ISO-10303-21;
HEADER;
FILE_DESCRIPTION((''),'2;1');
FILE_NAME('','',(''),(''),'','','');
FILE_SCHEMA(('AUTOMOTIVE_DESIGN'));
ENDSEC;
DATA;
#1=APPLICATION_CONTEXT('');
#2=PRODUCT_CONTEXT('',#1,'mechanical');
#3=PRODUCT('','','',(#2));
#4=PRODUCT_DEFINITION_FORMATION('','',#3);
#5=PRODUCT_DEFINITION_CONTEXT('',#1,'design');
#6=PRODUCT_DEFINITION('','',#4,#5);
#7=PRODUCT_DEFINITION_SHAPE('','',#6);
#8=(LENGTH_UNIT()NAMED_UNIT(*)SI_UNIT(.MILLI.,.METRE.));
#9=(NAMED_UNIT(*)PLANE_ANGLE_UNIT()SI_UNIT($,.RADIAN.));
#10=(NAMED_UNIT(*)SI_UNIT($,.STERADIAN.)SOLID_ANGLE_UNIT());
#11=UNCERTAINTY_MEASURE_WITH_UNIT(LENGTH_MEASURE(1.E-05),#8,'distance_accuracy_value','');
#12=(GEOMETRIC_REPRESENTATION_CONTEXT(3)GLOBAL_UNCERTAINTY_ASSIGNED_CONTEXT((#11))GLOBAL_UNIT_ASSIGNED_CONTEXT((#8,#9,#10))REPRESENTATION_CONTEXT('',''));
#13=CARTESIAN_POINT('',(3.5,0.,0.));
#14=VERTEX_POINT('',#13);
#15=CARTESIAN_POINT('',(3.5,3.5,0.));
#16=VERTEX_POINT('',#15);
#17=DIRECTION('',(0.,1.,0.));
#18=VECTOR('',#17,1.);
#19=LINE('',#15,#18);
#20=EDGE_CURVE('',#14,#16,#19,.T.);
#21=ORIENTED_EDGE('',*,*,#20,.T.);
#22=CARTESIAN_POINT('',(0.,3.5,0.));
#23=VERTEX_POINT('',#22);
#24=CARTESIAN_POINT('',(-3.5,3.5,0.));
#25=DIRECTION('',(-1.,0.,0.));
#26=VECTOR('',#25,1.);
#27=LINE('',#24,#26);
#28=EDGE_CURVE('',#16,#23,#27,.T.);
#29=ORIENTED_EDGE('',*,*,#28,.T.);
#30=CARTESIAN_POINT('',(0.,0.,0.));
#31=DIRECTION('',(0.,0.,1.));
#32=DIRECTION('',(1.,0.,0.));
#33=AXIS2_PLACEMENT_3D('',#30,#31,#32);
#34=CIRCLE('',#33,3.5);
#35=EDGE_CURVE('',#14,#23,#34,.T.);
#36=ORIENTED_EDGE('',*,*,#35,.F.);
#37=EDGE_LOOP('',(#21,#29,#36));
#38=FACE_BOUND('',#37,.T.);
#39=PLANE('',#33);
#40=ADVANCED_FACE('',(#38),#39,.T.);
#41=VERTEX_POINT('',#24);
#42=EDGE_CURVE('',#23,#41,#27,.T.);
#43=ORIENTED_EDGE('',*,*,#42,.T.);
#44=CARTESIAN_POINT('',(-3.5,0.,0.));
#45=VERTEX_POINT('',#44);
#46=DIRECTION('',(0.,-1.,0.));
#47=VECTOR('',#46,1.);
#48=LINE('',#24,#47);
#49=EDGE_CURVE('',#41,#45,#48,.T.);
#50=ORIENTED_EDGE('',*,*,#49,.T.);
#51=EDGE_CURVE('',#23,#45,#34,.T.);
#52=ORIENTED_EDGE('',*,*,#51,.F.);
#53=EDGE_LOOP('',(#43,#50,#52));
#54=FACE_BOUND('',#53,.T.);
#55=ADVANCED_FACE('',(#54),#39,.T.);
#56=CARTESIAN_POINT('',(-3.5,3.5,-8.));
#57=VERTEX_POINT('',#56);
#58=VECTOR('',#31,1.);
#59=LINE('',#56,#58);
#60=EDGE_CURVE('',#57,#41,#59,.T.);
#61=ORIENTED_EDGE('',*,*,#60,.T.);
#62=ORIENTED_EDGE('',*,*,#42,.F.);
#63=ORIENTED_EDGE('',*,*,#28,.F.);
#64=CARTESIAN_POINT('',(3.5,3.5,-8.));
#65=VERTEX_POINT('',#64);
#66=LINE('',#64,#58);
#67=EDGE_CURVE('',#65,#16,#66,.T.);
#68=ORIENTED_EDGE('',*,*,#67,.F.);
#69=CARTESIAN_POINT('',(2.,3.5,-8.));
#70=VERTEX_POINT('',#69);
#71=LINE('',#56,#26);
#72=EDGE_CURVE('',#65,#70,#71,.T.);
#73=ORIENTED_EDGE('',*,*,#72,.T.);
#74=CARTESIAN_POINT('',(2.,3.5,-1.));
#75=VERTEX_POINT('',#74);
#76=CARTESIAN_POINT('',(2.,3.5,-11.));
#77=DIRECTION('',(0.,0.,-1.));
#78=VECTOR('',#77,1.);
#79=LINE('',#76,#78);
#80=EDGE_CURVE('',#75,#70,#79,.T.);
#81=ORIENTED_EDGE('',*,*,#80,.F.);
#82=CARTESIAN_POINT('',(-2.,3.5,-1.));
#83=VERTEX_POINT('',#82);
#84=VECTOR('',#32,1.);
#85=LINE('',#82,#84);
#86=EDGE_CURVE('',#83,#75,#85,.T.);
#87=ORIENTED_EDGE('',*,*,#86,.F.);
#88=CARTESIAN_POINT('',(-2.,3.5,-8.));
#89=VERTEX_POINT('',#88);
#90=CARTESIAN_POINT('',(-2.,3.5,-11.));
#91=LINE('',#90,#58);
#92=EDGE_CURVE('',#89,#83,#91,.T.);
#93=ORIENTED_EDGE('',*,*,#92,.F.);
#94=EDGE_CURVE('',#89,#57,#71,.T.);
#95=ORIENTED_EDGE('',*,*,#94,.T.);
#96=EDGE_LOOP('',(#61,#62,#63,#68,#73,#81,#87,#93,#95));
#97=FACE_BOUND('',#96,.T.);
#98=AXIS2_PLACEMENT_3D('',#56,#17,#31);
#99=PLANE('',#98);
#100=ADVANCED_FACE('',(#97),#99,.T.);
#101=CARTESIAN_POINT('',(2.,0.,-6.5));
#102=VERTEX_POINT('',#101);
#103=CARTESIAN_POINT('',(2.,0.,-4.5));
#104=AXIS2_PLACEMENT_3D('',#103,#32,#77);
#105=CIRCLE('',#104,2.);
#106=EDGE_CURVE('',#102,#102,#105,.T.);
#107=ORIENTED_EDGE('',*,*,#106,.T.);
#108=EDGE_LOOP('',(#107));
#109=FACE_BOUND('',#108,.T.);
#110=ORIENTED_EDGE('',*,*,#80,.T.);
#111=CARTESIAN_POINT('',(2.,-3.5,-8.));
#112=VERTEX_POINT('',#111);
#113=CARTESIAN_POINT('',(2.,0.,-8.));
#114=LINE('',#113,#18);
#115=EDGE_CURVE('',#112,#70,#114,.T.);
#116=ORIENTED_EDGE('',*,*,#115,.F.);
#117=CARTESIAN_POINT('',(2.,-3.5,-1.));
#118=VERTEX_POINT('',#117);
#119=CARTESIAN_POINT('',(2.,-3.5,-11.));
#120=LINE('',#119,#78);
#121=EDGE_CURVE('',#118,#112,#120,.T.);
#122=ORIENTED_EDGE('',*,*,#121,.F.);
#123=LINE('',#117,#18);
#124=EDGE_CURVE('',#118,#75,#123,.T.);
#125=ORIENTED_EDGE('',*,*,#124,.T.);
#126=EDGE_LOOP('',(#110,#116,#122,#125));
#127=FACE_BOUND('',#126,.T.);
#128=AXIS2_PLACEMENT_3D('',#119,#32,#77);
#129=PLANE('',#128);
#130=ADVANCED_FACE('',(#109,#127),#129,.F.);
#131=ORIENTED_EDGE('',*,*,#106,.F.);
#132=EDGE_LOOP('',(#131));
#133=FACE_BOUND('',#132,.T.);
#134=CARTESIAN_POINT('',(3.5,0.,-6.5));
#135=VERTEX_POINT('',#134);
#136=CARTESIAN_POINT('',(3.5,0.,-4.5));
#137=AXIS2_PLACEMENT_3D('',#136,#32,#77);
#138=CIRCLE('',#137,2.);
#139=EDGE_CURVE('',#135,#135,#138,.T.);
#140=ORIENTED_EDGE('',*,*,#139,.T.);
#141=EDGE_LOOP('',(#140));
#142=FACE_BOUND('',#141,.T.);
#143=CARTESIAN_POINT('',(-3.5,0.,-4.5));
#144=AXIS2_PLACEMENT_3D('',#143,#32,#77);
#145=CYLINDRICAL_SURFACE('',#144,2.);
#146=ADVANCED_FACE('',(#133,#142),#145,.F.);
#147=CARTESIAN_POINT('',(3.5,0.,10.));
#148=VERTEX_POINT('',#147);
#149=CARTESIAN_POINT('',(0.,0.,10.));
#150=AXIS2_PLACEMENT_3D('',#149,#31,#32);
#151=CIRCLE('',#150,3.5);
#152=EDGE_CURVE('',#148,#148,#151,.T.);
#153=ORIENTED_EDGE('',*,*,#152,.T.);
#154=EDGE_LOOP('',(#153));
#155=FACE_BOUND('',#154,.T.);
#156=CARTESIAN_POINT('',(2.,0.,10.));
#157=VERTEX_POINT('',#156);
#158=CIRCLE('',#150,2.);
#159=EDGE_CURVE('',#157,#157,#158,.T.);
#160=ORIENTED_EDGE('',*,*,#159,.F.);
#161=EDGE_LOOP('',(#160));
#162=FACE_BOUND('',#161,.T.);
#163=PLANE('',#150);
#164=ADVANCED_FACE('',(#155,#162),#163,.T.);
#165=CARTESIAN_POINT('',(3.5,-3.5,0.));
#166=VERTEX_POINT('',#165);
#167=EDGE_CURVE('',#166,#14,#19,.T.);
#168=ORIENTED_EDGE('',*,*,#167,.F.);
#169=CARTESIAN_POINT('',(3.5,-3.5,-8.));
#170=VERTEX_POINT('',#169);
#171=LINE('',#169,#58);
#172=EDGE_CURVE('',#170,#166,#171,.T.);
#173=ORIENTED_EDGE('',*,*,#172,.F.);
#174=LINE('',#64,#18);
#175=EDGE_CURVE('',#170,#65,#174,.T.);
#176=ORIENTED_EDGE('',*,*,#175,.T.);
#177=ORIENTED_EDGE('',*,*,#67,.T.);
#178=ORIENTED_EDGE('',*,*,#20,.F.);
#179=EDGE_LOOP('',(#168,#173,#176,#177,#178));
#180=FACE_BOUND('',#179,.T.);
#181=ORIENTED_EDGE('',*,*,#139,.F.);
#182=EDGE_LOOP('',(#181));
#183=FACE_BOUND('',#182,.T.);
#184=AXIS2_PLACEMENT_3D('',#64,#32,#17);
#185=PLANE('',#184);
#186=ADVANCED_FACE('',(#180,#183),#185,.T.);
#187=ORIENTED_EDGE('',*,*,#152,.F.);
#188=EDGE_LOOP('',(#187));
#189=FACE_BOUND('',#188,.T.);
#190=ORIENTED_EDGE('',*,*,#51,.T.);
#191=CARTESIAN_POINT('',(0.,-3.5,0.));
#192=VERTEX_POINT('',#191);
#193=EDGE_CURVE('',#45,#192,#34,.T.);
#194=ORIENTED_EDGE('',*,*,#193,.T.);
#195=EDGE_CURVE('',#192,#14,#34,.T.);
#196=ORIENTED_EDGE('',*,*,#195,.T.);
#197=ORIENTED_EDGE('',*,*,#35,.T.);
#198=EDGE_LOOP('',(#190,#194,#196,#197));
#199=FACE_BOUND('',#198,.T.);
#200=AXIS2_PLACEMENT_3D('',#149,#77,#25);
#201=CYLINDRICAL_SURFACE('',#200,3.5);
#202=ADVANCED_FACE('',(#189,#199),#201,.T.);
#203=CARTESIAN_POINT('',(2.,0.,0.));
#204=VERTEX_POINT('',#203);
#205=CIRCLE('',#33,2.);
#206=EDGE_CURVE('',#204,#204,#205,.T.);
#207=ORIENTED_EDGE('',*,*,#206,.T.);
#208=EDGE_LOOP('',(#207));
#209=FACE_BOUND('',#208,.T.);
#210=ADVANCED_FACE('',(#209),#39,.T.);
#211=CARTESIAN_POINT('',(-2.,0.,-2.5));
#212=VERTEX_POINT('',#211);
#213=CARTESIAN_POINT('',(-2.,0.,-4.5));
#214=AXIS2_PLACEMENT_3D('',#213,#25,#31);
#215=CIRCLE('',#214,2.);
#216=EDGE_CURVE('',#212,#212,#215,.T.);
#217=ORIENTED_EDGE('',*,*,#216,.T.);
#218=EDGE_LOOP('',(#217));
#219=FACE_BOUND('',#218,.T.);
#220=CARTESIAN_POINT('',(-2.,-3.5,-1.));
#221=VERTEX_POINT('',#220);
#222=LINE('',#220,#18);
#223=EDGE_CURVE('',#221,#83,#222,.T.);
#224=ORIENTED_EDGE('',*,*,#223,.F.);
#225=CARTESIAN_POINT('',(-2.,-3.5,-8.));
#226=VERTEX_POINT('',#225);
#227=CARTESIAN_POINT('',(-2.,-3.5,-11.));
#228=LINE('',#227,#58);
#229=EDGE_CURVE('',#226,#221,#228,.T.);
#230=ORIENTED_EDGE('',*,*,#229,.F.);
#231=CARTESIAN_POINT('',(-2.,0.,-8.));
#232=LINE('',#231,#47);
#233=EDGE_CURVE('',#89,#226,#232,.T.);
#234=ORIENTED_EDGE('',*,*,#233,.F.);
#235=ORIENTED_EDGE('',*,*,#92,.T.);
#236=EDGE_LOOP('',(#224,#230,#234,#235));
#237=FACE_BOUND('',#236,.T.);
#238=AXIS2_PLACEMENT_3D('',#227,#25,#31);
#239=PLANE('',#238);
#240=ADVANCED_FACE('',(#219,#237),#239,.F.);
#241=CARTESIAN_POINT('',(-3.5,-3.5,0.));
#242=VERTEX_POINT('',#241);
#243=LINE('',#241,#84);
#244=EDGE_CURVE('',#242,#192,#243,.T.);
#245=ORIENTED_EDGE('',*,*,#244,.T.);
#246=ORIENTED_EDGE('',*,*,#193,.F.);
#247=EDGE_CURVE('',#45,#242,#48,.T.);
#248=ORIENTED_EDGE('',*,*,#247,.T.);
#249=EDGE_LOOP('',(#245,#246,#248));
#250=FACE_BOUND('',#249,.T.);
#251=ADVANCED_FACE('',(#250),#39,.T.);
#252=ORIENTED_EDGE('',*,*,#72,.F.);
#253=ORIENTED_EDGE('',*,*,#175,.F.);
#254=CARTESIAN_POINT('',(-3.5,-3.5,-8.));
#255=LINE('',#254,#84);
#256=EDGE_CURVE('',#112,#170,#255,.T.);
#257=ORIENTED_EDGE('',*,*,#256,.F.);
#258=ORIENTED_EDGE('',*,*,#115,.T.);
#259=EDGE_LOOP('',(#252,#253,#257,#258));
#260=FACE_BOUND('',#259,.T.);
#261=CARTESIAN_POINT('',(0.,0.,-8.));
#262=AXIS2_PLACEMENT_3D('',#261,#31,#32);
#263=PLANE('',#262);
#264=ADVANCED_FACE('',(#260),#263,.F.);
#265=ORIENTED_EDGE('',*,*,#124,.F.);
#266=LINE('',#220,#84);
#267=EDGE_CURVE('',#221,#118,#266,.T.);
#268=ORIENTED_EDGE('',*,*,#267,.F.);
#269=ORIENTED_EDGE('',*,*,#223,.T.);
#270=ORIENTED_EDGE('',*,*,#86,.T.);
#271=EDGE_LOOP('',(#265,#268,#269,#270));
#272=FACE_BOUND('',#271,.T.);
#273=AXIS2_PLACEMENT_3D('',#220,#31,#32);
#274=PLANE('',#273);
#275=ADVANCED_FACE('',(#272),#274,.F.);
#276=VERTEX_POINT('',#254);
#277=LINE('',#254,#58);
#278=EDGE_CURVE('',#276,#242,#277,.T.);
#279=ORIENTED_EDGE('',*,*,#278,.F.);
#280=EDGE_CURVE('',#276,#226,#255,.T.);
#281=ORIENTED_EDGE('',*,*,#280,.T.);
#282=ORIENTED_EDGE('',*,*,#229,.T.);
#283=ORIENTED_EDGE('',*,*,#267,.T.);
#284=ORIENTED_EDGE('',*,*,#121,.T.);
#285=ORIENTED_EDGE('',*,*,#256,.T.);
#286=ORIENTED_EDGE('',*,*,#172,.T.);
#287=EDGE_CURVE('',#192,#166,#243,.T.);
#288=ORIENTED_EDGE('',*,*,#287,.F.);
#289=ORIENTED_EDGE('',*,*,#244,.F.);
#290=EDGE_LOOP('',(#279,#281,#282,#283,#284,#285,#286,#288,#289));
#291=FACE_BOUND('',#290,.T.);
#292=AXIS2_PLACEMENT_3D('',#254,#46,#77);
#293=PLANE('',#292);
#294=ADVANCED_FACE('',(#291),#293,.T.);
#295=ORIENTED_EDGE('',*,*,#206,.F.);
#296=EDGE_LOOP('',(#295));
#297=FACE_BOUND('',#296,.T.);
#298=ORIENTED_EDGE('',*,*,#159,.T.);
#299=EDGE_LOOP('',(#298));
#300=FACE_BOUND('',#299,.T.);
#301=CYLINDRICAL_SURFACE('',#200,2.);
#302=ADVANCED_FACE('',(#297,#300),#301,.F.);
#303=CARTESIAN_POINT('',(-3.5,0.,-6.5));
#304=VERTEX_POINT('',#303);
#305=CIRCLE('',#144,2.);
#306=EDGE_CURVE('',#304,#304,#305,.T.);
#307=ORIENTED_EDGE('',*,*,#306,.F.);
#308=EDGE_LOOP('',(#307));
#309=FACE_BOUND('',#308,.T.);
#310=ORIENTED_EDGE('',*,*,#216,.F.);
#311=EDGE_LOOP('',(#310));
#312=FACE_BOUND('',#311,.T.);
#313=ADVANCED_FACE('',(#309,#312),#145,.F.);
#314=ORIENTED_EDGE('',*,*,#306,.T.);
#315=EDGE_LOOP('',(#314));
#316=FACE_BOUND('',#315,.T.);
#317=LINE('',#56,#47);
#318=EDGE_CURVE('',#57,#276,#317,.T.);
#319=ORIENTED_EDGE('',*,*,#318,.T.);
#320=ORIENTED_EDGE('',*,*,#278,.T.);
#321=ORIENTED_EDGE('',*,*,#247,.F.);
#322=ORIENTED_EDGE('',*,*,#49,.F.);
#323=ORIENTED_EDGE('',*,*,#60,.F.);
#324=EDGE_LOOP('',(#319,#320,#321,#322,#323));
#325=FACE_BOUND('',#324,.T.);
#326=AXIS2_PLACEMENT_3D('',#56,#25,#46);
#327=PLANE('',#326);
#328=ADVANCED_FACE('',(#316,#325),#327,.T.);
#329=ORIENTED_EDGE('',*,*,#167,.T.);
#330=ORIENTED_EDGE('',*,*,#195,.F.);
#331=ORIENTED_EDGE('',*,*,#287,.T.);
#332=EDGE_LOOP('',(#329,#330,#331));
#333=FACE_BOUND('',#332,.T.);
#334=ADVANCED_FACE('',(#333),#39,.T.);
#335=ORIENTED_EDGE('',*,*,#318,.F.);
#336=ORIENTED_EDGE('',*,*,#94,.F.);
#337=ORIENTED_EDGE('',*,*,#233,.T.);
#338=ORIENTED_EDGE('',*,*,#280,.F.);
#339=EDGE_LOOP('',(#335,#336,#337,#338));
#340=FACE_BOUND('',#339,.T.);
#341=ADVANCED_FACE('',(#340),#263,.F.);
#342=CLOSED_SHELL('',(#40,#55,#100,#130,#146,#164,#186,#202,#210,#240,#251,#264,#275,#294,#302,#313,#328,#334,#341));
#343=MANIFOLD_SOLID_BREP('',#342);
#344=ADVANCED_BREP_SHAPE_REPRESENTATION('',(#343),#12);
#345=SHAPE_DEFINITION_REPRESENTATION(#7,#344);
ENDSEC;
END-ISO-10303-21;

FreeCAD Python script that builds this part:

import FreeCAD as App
import Part
import Sketcher

V = App.Vector


def add_polygon(sketch, points):
    """Adds a closed chain of lines whose ends are joined by coincident constraints."""
    first, n = sketch.GeometryCount, len(points)
    for a, b in zip(points, points[1:] + points[:1]):
        sketch.addGeometry(Part.LineSegment(App.Vector(*a, 0), App.Vector(*b, 0)), False)
    for i in range(n):
        sketch.addConstraint(Sketcher.Constraint("Coincident", first + i, 2, first + (i + 1) % n, 1))

doc = App.newDocument("Part")
body = doc.addObject("PartDesign::Body", "Body")

# Sketch on XY plane
sketch1 = body.newObject("Sketcher::SketchObject", "Sketch")
sketch1.AttachmentSupport = (doc.getObject("XY_Plane"), [""])
sketch1.MapMode = "FlatFace"
sketch1.addGeometry([
    Part.Circle(V(0, 0, 0), V(0, 0, 1), 3.5),
    Part.Circle(V(0, 0, 0), V(0, 0, 1), 2),
], False)
sketch1.addConstraint([
    Sketcher.Constraint("Coincident", 0, 3, -1, 1),
    Sketcher.Constraint("Coincident", 1, 3, -1, 1),
    Sketcher.Constraint("Diameter", 0, 7.0),
    Sketcher.Constraint("Diameter", 1, 4.0),
])
pad1 = body.newObject("PartDesign::Pad", "Pad")
pad1.Profile = sketch1
pad1.Length = 10

# Sketch on XY plane
sketch2 = body.newObject("Sketcher::SketchObject", "Sketch001")
sketch2.AttachmentSupport = (doc.getObject("XY_Plane"), [""])
sketch2.MapMode = "FlatFace"
add_polygon(sketch2, [(-4, 4), (-4, -4), (4, -4), (4, 4)])  # lines 0-3
sketch2.addConstraint([
    Sketcher.Constraint("Vertical", 0),
    Sketcher.Constraint("Horizontal", 1),
    Sketcher.Constraint("Vertical", 2),
    Sketcher.Constraint("Horizontal", 3),
    Sketcher.Constraint("Symmetric", 0, 2, 2, 2, -1, 1),
    Sketcher.Constraint("Equal", 3, 0),
    Sketcher.Constraint("DistanceX", 1, 1, 1, 2, 7.0),
])
pad2 = body.newObject("PartDesign::Pad", "Pad001")
pad2.Profile = sketch2
pad2.Length = 8
pad2.Reversed = True

# Sketch on XZ plane
sketch3 = body.newObject("Sketcher::SketchObject", "Sketch002")
sketch3.AttachmentSupport = (doc.getObject("XZ_Plane"), [""])
sketch3.MapMode = "FlatFace"
add_polygon(sketch3, [(-2, -11), (-2, -1), (2, -1), (2, -11)])  # lines 0-3
sketch3.addConstraint([
    Sketcher.Constraint("Vertical", 0),
    Sketcher.Constraint("Horizontal", 1),
    Sketcher.Constraint("Vertical", 2),
    Sketcher.Constraint("Horizontal", 3),
    Sketcher.Constraint("DistanceX", 1, 1, 1, 2, 4.0),
    Sketcher.Constraint("DistanceY", 0, 1, 0, 2, 10.0),
    Sketcher.Constraint("DistanceX", 0, 2, -1, 1, 2.0),
    Sketcher.Constraint("DistanceY", 0, 2, -1, 1, 1.0),
])
pocket1 = body.newObject("PartDesign::Pocket", "Pocket")
pocket1.Profile = sketch3
pocket1.Type = "ThroughAll"
pocket1.Midplane = True

# Sketch on YZ plane
sketch4 = body.newObject("Sketcher::SketchObject", "Sketch003")
sketch4.AttachmentSupport = (doc.getObject("YZ_Plane"), [""])
sketch4.MapMode = "FlatFace"
sketch4.addGeometry(Part.Circle(V(0, -4.5, 0), V(0, 0, 1), 2), False)
sketch4.addConstraint([
    Sketcher.Constraint("PointOnObject", 0, 3, -2),
    Sketcher.Constraint("Diameter", 0, 4.0),
    Sketcher.Constraint("DistanceY", 0, 3, -1, 1, 4.5),
])
pocket2 = body.newObject("PartDesign::Pocket", "Pocket001")
pocket2.Profile = sketch4
pocket2.Type = "ThroughAll"
pocket2.Midplane = True

doc.recompute()
